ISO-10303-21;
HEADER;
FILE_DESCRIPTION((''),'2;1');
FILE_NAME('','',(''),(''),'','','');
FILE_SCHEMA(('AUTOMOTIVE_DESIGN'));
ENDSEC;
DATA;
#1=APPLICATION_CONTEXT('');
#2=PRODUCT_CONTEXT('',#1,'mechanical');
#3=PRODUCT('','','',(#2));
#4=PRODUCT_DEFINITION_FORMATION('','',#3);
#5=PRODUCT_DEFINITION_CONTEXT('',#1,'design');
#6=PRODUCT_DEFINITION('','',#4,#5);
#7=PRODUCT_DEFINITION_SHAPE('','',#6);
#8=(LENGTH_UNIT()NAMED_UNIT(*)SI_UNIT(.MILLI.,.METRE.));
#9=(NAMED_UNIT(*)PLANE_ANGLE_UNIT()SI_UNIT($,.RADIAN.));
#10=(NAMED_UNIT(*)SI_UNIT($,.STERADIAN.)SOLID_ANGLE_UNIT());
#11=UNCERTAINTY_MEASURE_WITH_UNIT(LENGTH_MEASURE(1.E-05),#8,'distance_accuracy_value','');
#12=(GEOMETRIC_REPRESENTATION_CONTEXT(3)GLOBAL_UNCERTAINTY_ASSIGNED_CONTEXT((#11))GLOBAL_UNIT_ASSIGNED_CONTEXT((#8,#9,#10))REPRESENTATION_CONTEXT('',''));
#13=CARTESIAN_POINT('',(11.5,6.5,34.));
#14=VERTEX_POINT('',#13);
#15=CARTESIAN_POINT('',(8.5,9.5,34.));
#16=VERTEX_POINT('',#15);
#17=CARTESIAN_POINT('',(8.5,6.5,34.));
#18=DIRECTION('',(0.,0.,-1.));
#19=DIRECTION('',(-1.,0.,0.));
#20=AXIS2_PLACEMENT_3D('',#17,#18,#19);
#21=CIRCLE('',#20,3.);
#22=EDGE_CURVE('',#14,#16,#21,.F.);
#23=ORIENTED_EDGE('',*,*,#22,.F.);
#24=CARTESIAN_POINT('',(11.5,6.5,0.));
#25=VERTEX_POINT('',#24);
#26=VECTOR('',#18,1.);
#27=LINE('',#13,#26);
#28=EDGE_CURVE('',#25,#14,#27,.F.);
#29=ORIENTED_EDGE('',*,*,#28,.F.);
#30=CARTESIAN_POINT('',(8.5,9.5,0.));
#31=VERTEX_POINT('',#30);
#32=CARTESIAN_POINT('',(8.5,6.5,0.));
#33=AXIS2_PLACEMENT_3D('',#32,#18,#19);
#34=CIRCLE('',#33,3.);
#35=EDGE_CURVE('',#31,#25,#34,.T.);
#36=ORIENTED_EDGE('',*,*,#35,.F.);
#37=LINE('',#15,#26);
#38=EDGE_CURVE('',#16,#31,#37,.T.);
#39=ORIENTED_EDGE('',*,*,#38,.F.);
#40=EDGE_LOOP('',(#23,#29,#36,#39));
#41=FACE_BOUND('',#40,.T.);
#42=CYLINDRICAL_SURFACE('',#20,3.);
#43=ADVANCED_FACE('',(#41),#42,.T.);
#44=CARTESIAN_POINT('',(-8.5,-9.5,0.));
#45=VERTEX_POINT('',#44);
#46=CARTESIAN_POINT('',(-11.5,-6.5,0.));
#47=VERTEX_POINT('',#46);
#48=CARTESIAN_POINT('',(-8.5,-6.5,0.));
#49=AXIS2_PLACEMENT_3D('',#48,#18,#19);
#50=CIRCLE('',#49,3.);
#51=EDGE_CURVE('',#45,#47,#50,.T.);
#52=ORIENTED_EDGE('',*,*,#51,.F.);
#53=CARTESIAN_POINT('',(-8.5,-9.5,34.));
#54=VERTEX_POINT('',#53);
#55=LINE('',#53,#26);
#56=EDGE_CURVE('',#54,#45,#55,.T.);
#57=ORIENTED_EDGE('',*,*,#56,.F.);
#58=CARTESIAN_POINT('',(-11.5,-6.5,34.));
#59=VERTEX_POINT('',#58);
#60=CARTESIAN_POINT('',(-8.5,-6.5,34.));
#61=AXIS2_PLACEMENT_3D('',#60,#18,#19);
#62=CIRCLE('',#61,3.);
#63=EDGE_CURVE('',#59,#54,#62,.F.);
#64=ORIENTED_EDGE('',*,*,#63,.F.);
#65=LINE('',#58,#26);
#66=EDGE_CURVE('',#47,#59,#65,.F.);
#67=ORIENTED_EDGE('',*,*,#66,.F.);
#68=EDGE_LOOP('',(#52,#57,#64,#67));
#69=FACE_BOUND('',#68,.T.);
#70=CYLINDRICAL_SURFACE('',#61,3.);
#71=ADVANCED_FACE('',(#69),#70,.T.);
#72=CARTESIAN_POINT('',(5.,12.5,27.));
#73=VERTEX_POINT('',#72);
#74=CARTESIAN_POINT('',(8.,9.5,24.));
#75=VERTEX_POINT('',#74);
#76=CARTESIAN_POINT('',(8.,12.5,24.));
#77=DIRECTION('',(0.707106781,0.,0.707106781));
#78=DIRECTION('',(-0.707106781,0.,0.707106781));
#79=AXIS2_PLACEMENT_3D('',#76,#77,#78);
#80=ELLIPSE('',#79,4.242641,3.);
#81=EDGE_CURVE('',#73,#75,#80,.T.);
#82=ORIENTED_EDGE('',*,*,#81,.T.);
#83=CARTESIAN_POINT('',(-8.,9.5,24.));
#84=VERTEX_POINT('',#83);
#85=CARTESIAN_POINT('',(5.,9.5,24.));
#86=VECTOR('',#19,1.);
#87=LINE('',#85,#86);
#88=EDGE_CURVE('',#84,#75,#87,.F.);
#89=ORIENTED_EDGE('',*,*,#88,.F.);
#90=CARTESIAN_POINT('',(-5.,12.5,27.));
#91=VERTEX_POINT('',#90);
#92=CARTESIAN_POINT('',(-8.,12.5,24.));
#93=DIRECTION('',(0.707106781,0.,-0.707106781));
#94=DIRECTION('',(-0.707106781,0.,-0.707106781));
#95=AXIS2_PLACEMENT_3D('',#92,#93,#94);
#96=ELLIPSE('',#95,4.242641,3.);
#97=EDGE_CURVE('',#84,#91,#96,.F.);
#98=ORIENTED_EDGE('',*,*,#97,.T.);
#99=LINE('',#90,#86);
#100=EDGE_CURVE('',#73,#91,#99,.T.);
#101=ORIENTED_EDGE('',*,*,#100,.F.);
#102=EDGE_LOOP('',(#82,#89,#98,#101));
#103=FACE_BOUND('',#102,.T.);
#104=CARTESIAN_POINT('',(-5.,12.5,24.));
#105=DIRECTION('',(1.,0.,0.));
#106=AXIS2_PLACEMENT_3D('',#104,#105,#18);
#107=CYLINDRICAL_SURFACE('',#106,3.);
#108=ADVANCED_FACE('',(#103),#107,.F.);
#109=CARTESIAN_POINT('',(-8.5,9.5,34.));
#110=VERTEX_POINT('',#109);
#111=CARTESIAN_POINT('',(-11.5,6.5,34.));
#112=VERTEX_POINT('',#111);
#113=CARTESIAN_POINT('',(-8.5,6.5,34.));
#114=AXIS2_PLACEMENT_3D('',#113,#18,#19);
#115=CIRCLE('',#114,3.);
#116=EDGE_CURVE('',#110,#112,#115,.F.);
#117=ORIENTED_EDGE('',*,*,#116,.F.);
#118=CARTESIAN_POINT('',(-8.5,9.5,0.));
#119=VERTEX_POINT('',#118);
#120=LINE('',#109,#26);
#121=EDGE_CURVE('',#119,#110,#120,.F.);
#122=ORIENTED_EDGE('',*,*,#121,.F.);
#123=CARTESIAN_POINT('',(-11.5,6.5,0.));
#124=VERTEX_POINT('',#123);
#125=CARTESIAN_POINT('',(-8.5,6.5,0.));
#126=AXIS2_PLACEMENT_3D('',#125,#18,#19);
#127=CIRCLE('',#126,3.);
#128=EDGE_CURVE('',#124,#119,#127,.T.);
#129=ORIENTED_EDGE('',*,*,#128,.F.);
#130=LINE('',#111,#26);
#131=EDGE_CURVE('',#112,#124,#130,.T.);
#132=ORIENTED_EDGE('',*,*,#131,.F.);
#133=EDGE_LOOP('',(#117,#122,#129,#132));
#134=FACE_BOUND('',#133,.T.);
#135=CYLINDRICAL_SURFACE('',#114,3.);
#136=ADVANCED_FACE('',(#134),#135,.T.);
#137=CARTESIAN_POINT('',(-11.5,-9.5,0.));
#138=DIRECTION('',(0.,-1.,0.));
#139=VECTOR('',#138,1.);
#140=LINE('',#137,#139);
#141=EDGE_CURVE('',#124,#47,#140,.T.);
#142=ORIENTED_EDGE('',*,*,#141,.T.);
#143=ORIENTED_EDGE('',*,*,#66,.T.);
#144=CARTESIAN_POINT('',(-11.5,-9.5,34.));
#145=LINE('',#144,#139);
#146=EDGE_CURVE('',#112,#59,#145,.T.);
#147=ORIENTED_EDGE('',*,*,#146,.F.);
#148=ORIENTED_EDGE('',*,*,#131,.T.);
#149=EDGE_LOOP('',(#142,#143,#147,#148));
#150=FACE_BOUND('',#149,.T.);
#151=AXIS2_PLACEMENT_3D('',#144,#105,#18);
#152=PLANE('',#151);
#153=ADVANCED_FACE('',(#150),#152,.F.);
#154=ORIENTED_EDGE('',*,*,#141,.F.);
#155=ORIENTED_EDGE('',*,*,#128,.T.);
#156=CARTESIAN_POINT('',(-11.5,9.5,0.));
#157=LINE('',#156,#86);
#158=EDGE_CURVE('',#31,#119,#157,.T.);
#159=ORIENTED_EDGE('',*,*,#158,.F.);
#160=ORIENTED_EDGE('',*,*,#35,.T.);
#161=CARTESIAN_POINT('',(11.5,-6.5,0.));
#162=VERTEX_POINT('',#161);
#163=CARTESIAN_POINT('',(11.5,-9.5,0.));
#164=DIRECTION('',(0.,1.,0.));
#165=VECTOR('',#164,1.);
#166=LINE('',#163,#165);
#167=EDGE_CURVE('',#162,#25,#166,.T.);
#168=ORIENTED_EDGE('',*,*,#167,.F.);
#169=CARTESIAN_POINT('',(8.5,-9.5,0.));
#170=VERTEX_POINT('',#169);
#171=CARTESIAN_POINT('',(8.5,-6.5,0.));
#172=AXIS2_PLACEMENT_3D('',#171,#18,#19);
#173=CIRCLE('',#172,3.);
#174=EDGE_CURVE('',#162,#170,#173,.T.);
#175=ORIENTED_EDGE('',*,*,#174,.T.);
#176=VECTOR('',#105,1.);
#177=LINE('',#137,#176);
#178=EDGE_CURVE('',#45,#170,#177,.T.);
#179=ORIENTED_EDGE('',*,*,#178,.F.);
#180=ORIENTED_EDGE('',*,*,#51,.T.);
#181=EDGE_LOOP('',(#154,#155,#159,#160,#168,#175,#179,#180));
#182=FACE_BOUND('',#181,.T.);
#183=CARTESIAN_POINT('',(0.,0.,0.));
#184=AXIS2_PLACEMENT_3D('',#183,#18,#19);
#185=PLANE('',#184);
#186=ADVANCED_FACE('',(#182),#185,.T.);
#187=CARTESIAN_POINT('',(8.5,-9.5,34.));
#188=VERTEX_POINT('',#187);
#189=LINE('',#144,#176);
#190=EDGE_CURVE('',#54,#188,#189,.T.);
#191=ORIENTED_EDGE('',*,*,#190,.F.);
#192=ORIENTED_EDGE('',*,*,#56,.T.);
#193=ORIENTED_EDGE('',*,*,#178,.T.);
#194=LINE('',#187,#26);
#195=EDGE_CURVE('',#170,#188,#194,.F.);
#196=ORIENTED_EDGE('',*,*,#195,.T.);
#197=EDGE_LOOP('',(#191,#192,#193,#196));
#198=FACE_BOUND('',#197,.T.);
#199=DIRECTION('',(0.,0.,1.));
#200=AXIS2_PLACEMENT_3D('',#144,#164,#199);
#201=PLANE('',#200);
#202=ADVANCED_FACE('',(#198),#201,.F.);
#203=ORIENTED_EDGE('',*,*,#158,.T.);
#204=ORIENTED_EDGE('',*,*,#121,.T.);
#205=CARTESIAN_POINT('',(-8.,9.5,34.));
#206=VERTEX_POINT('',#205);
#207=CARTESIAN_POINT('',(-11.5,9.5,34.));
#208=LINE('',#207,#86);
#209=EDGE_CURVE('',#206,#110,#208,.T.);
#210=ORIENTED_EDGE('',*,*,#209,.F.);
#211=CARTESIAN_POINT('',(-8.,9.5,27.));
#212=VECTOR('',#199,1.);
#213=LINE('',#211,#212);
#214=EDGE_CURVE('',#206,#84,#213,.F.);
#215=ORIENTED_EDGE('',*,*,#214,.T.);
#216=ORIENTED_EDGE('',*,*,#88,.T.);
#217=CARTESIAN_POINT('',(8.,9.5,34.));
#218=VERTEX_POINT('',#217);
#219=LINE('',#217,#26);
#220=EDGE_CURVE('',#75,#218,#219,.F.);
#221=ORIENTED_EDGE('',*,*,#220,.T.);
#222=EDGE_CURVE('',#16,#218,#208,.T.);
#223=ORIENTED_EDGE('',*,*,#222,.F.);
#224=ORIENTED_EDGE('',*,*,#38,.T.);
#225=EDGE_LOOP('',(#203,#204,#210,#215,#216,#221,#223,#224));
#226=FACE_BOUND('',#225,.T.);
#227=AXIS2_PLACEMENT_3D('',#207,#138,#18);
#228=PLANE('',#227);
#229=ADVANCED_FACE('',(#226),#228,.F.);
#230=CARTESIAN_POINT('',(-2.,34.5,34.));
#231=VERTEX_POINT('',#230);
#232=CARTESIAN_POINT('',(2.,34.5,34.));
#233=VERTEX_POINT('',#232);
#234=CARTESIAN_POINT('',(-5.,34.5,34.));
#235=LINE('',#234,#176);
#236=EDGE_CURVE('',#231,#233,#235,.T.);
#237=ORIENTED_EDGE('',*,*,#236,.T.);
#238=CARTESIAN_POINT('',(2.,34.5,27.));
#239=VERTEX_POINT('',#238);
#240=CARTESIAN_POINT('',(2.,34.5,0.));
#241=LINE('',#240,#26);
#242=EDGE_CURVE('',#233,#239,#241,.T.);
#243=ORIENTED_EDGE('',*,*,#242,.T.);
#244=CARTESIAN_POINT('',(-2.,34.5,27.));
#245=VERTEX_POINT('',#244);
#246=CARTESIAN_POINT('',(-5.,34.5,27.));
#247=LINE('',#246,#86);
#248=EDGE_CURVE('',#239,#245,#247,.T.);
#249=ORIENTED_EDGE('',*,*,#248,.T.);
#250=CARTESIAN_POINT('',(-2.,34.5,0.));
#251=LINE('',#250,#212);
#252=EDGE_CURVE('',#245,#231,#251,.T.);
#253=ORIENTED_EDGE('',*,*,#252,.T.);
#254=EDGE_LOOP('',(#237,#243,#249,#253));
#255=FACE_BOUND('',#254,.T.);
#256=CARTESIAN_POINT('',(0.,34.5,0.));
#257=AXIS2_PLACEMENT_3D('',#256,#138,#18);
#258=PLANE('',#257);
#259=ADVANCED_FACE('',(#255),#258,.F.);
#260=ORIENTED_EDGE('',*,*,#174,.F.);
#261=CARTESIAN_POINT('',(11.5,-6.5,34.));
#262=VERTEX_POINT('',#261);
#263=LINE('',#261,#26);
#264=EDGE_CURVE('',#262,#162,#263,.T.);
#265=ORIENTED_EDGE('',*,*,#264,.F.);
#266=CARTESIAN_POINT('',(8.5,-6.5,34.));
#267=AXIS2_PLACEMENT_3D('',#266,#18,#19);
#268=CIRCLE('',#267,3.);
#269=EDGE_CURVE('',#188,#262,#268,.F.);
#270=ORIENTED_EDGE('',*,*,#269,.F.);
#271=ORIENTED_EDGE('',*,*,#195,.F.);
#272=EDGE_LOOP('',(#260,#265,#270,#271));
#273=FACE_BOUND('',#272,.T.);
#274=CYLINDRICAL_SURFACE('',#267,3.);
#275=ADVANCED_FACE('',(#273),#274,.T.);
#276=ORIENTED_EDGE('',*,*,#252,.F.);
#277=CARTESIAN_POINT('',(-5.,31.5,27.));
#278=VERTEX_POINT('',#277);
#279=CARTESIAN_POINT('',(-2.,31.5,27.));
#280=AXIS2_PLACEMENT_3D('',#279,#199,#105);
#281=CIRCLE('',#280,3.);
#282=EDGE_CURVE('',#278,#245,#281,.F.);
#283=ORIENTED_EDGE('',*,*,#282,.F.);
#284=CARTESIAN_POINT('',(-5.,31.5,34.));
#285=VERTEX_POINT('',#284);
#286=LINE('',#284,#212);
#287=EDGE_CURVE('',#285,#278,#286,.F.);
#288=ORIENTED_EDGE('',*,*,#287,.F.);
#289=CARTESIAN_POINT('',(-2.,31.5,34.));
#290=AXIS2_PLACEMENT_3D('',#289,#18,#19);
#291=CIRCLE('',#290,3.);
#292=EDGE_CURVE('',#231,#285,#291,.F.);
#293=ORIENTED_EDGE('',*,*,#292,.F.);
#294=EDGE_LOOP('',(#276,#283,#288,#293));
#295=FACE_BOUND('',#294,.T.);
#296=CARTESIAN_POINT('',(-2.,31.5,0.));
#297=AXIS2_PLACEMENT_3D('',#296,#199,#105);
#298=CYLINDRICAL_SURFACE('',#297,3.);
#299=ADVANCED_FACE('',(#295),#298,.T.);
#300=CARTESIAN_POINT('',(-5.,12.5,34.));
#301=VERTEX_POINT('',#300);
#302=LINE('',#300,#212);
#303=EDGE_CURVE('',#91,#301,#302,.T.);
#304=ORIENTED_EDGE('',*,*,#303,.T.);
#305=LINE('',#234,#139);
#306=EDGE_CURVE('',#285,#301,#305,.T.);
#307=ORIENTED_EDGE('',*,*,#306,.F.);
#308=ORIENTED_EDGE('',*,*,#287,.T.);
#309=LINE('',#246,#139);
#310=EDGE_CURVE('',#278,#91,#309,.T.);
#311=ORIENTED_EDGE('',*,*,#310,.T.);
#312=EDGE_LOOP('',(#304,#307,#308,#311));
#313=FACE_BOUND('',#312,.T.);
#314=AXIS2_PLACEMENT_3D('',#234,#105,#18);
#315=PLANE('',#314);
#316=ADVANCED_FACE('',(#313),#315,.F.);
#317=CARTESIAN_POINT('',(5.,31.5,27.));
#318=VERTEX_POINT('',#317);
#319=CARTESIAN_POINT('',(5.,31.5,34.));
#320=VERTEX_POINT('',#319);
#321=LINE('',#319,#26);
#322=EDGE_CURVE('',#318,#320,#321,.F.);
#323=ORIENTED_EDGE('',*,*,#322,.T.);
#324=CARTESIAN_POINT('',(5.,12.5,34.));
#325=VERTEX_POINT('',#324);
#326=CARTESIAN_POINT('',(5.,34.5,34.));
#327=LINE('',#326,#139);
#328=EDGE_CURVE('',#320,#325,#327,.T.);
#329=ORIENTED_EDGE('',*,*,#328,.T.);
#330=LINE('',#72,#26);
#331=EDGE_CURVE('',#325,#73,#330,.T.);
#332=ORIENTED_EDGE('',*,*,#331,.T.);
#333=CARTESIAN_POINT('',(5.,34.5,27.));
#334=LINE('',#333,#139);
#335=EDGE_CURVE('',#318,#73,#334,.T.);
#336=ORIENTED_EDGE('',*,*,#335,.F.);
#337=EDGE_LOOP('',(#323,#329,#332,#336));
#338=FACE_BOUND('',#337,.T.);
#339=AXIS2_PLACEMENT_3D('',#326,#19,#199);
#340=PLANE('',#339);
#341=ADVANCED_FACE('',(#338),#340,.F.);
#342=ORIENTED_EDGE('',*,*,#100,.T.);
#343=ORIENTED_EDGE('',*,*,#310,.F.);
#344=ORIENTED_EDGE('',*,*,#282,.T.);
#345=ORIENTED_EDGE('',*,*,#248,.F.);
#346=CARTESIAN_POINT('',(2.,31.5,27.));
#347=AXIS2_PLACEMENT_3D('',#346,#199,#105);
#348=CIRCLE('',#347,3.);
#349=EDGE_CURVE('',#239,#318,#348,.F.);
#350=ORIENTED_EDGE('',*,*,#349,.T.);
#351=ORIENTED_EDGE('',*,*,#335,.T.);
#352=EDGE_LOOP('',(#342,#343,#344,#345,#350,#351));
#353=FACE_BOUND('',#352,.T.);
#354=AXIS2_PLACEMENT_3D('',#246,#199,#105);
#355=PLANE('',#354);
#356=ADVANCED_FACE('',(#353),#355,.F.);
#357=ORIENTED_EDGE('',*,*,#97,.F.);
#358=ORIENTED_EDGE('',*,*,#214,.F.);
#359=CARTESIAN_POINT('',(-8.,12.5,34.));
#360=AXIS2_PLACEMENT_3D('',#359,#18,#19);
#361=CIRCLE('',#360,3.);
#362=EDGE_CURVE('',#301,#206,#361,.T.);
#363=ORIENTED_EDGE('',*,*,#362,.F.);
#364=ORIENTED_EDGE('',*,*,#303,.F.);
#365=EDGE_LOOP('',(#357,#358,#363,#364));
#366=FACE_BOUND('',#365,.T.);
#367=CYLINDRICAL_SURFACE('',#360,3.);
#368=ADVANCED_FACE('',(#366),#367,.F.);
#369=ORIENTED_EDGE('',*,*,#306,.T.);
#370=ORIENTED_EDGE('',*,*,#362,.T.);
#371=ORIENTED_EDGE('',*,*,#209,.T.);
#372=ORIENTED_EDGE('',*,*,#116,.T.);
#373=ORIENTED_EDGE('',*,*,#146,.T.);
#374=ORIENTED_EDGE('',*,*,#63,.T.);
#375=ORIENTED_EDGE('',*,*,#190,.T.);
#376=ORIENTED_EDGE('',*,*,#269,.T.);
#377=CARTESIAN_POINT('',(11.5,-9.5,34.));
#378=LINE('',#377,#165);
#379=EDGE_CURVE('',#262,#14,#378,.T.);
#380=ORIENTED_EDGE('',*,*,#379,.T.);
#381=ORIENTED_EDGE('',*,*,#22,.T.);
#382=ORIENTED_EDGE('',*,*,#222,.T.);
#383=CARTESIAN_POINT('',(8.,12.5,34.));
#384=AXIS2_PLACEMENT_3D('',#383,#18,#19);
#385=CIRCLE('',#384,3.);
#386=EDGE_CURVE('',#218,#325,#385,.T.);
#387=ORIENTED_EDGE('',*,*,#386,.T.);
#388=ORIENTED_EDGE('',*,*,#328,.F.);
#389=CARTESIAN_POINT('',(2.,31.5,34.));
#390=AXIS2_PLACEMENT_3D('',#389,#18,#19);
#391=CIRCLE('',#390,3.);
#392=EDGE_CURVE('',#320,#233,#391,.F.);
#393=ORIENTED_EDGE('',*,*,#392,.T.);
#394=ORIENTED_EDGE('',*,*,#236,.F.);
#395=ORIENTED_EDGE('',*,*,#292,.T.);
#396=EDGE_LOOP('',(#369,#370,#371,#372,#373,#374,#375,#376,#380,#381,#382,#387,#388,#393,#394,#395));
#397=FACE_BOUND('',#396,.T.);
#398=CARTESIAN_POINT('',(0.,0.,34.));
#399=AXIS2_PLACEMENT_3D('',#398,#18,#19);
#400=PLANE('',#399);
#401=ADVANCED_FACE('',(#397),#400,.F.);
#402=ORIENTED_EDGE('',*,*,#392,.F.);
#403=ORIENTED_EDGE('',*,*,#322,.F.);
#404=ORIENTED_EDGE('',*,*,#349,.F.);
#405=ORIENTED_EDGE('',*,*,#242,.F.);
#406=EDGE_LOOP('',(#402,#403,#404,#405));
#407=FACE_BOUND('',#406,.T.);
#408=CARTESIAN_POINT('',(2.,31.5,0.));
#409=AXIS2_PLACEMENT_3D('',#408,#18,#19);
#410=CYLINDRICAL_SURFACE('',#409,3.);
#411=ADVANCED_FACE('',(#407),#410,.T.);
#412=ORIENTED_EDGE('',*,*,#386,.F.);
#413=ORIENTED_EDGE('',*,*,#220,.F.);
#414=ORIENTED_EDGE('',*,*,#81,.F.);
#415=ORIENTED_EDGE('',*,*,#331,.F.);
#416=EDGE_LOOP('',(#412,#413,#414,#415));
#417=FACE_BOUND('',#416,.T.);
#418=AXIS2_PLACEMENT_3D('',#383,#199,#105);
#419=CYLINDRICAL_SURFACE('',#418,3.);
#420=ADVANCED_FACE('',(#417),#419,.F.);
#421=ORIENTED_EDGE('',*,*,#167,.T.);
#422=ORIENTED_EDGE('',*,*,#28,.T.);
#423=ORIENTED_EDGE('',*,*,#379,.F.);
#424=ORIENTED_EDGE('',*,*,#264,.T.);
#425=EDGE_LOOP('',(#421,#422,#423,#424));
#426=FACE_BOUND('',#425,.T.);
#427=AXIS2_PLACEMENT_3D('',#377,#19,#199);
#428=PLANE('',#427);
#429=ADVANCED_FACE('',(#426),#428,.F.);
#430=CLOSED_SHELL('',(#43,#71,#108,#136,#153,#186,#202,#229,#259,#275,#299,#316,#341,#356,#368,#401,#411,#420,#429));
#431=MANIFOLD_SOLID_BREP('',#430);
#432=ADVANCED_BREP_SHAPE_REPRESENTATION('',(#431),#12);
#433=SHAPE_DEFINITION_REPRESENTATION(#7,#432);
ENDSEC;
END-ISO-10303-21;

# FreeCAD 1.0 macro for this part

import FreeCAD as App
import Part
import Sketcher
from FreeCAD import Vector
Q = App.Units.Quantity


def edges_at(feature, points):
    """Names of the edges that pass closest to the given points."""
    edges = feature.Shape.Edges
    near = lambda p: min(range(len(edges)), key=lambda i: edges[i].distToShape(Part.Vertex(*p))[0])
    return sorted({f"Edge{near(p) + 1}" for p in points})


def add_polygon(sketch, points):
    """Adds a closed chain of lines whose ends are joined by coincident constraints."""
    first, n = sketch.GeometryCount, len(points)
    for a, b in zip(points, points[1:] + points[:1]):
        sketch.addGeometry(Part.LineSegment(App.Vector(*a, 0), App.Vector(*b, 0)), False)
    for i in range(n):
        sketch.addConstraint(Sketcher.Constraint("Coincident", first + i, 2, first + (i + 1) % n, 1))

doc = App.newDocument("Part")
body = doc.addObject("PartDesign::Body", "Body")

# Sketch on XY plane
sketch1 = body.newObject("Sketcher::SketchObject", "Sketch")
sketch1.AttachmentSupport = (doc.getObject("XY_Plane"), [""])
sketch1.MapMode = "FlatFace"
add_polygon(sketch1, [(-12, 10), (-12, -10), (12, -10), (12, 10)])  # lines 0-3
sketch1.addConstraint([
    Sketcher.Constraint("Vertical", 0),
    Sketcher.Constraint("Horizontal", 1),
    Sketcher.Constraint("Vertical", 2),
    Sketcher.Constraint("Horizontal", 3),
    Sketcher.Constraint("Symmetric", 0, 2, 2, 2, -1, 1),
    Sketcher.Constraint("DistanceX", 1, 1, 1, 2, Q("23 mm")),
    Sketcher.Constraint("DistanceY", 0, 2, 0, 1, Q("19 mm")),
])
pad1 = body.newObject("PartDesign::Pad", "Pad")
pad1.Profile = sketch1
pad1.Length = 34

# Sketch on XZ plane
sketch2 = body.newObject("Sketcher::SketchObject", "Sketch001")
sketch2.AttachmentSupport = (doc.getObject("XZ_Plane"), [""])
sketch2.MapMode = "FlatFace"
sketch2.AttachmentOffset = App.Placement(Vector(0, 0, -9.5), App.Rotation())
add_polygon(sketch2, [(-5, 27), (-5, 34), (5, 34), (5, 27)])  # lines 0-3
sketch2.addConstraint([
    Sketcher.Constraint("Vertical", 0),
    Sketcher.Constraint("Horizontal", 1),
    Sketcher.Constraint("Vertical", 2),
    Sketcher.Constraint("Horizontal", 3),
    Sketcher.Constraint("DistanceX", 1, 1, 1, 2, Q("10 mm")),
    Sketcher.Constraint("DistanceY", 0, 1, 0, 2, Q("7 mm")),
    Sketcher.Constraint("DistanceX", 0, 2, -1, 1, Q("5 mm")),
    Sketcher.Constraint("DistanceY", -1, 1, 0, 2, Q("34 mm")),
])
pad2 = body.newObject("PartDesign::Pad", "Pad001")
pad2.Profile = sketch2
pad2.Length = 25
pad2.Reversed = True
doc.recompute()

fillet = body.newObject("PartDesign::Fillet", "Fillet")
fillet.Base = (pad2, edges_at(pad2, [
    (-5, 9.5, 30.5),
    (5, 9.5, 30.5),
    (0, 9.5, 27),
    (-5, 34.5, 30.5),
    (5, 34.5, 30.5),
    (11.5, -9.5, 17),
    (-11.5, -9.5, 17),
    (-11.5, 9.5, 17),
    (11.5, 9.5, 17),
]))
fillet.Radius = 3

doc.recompute()
